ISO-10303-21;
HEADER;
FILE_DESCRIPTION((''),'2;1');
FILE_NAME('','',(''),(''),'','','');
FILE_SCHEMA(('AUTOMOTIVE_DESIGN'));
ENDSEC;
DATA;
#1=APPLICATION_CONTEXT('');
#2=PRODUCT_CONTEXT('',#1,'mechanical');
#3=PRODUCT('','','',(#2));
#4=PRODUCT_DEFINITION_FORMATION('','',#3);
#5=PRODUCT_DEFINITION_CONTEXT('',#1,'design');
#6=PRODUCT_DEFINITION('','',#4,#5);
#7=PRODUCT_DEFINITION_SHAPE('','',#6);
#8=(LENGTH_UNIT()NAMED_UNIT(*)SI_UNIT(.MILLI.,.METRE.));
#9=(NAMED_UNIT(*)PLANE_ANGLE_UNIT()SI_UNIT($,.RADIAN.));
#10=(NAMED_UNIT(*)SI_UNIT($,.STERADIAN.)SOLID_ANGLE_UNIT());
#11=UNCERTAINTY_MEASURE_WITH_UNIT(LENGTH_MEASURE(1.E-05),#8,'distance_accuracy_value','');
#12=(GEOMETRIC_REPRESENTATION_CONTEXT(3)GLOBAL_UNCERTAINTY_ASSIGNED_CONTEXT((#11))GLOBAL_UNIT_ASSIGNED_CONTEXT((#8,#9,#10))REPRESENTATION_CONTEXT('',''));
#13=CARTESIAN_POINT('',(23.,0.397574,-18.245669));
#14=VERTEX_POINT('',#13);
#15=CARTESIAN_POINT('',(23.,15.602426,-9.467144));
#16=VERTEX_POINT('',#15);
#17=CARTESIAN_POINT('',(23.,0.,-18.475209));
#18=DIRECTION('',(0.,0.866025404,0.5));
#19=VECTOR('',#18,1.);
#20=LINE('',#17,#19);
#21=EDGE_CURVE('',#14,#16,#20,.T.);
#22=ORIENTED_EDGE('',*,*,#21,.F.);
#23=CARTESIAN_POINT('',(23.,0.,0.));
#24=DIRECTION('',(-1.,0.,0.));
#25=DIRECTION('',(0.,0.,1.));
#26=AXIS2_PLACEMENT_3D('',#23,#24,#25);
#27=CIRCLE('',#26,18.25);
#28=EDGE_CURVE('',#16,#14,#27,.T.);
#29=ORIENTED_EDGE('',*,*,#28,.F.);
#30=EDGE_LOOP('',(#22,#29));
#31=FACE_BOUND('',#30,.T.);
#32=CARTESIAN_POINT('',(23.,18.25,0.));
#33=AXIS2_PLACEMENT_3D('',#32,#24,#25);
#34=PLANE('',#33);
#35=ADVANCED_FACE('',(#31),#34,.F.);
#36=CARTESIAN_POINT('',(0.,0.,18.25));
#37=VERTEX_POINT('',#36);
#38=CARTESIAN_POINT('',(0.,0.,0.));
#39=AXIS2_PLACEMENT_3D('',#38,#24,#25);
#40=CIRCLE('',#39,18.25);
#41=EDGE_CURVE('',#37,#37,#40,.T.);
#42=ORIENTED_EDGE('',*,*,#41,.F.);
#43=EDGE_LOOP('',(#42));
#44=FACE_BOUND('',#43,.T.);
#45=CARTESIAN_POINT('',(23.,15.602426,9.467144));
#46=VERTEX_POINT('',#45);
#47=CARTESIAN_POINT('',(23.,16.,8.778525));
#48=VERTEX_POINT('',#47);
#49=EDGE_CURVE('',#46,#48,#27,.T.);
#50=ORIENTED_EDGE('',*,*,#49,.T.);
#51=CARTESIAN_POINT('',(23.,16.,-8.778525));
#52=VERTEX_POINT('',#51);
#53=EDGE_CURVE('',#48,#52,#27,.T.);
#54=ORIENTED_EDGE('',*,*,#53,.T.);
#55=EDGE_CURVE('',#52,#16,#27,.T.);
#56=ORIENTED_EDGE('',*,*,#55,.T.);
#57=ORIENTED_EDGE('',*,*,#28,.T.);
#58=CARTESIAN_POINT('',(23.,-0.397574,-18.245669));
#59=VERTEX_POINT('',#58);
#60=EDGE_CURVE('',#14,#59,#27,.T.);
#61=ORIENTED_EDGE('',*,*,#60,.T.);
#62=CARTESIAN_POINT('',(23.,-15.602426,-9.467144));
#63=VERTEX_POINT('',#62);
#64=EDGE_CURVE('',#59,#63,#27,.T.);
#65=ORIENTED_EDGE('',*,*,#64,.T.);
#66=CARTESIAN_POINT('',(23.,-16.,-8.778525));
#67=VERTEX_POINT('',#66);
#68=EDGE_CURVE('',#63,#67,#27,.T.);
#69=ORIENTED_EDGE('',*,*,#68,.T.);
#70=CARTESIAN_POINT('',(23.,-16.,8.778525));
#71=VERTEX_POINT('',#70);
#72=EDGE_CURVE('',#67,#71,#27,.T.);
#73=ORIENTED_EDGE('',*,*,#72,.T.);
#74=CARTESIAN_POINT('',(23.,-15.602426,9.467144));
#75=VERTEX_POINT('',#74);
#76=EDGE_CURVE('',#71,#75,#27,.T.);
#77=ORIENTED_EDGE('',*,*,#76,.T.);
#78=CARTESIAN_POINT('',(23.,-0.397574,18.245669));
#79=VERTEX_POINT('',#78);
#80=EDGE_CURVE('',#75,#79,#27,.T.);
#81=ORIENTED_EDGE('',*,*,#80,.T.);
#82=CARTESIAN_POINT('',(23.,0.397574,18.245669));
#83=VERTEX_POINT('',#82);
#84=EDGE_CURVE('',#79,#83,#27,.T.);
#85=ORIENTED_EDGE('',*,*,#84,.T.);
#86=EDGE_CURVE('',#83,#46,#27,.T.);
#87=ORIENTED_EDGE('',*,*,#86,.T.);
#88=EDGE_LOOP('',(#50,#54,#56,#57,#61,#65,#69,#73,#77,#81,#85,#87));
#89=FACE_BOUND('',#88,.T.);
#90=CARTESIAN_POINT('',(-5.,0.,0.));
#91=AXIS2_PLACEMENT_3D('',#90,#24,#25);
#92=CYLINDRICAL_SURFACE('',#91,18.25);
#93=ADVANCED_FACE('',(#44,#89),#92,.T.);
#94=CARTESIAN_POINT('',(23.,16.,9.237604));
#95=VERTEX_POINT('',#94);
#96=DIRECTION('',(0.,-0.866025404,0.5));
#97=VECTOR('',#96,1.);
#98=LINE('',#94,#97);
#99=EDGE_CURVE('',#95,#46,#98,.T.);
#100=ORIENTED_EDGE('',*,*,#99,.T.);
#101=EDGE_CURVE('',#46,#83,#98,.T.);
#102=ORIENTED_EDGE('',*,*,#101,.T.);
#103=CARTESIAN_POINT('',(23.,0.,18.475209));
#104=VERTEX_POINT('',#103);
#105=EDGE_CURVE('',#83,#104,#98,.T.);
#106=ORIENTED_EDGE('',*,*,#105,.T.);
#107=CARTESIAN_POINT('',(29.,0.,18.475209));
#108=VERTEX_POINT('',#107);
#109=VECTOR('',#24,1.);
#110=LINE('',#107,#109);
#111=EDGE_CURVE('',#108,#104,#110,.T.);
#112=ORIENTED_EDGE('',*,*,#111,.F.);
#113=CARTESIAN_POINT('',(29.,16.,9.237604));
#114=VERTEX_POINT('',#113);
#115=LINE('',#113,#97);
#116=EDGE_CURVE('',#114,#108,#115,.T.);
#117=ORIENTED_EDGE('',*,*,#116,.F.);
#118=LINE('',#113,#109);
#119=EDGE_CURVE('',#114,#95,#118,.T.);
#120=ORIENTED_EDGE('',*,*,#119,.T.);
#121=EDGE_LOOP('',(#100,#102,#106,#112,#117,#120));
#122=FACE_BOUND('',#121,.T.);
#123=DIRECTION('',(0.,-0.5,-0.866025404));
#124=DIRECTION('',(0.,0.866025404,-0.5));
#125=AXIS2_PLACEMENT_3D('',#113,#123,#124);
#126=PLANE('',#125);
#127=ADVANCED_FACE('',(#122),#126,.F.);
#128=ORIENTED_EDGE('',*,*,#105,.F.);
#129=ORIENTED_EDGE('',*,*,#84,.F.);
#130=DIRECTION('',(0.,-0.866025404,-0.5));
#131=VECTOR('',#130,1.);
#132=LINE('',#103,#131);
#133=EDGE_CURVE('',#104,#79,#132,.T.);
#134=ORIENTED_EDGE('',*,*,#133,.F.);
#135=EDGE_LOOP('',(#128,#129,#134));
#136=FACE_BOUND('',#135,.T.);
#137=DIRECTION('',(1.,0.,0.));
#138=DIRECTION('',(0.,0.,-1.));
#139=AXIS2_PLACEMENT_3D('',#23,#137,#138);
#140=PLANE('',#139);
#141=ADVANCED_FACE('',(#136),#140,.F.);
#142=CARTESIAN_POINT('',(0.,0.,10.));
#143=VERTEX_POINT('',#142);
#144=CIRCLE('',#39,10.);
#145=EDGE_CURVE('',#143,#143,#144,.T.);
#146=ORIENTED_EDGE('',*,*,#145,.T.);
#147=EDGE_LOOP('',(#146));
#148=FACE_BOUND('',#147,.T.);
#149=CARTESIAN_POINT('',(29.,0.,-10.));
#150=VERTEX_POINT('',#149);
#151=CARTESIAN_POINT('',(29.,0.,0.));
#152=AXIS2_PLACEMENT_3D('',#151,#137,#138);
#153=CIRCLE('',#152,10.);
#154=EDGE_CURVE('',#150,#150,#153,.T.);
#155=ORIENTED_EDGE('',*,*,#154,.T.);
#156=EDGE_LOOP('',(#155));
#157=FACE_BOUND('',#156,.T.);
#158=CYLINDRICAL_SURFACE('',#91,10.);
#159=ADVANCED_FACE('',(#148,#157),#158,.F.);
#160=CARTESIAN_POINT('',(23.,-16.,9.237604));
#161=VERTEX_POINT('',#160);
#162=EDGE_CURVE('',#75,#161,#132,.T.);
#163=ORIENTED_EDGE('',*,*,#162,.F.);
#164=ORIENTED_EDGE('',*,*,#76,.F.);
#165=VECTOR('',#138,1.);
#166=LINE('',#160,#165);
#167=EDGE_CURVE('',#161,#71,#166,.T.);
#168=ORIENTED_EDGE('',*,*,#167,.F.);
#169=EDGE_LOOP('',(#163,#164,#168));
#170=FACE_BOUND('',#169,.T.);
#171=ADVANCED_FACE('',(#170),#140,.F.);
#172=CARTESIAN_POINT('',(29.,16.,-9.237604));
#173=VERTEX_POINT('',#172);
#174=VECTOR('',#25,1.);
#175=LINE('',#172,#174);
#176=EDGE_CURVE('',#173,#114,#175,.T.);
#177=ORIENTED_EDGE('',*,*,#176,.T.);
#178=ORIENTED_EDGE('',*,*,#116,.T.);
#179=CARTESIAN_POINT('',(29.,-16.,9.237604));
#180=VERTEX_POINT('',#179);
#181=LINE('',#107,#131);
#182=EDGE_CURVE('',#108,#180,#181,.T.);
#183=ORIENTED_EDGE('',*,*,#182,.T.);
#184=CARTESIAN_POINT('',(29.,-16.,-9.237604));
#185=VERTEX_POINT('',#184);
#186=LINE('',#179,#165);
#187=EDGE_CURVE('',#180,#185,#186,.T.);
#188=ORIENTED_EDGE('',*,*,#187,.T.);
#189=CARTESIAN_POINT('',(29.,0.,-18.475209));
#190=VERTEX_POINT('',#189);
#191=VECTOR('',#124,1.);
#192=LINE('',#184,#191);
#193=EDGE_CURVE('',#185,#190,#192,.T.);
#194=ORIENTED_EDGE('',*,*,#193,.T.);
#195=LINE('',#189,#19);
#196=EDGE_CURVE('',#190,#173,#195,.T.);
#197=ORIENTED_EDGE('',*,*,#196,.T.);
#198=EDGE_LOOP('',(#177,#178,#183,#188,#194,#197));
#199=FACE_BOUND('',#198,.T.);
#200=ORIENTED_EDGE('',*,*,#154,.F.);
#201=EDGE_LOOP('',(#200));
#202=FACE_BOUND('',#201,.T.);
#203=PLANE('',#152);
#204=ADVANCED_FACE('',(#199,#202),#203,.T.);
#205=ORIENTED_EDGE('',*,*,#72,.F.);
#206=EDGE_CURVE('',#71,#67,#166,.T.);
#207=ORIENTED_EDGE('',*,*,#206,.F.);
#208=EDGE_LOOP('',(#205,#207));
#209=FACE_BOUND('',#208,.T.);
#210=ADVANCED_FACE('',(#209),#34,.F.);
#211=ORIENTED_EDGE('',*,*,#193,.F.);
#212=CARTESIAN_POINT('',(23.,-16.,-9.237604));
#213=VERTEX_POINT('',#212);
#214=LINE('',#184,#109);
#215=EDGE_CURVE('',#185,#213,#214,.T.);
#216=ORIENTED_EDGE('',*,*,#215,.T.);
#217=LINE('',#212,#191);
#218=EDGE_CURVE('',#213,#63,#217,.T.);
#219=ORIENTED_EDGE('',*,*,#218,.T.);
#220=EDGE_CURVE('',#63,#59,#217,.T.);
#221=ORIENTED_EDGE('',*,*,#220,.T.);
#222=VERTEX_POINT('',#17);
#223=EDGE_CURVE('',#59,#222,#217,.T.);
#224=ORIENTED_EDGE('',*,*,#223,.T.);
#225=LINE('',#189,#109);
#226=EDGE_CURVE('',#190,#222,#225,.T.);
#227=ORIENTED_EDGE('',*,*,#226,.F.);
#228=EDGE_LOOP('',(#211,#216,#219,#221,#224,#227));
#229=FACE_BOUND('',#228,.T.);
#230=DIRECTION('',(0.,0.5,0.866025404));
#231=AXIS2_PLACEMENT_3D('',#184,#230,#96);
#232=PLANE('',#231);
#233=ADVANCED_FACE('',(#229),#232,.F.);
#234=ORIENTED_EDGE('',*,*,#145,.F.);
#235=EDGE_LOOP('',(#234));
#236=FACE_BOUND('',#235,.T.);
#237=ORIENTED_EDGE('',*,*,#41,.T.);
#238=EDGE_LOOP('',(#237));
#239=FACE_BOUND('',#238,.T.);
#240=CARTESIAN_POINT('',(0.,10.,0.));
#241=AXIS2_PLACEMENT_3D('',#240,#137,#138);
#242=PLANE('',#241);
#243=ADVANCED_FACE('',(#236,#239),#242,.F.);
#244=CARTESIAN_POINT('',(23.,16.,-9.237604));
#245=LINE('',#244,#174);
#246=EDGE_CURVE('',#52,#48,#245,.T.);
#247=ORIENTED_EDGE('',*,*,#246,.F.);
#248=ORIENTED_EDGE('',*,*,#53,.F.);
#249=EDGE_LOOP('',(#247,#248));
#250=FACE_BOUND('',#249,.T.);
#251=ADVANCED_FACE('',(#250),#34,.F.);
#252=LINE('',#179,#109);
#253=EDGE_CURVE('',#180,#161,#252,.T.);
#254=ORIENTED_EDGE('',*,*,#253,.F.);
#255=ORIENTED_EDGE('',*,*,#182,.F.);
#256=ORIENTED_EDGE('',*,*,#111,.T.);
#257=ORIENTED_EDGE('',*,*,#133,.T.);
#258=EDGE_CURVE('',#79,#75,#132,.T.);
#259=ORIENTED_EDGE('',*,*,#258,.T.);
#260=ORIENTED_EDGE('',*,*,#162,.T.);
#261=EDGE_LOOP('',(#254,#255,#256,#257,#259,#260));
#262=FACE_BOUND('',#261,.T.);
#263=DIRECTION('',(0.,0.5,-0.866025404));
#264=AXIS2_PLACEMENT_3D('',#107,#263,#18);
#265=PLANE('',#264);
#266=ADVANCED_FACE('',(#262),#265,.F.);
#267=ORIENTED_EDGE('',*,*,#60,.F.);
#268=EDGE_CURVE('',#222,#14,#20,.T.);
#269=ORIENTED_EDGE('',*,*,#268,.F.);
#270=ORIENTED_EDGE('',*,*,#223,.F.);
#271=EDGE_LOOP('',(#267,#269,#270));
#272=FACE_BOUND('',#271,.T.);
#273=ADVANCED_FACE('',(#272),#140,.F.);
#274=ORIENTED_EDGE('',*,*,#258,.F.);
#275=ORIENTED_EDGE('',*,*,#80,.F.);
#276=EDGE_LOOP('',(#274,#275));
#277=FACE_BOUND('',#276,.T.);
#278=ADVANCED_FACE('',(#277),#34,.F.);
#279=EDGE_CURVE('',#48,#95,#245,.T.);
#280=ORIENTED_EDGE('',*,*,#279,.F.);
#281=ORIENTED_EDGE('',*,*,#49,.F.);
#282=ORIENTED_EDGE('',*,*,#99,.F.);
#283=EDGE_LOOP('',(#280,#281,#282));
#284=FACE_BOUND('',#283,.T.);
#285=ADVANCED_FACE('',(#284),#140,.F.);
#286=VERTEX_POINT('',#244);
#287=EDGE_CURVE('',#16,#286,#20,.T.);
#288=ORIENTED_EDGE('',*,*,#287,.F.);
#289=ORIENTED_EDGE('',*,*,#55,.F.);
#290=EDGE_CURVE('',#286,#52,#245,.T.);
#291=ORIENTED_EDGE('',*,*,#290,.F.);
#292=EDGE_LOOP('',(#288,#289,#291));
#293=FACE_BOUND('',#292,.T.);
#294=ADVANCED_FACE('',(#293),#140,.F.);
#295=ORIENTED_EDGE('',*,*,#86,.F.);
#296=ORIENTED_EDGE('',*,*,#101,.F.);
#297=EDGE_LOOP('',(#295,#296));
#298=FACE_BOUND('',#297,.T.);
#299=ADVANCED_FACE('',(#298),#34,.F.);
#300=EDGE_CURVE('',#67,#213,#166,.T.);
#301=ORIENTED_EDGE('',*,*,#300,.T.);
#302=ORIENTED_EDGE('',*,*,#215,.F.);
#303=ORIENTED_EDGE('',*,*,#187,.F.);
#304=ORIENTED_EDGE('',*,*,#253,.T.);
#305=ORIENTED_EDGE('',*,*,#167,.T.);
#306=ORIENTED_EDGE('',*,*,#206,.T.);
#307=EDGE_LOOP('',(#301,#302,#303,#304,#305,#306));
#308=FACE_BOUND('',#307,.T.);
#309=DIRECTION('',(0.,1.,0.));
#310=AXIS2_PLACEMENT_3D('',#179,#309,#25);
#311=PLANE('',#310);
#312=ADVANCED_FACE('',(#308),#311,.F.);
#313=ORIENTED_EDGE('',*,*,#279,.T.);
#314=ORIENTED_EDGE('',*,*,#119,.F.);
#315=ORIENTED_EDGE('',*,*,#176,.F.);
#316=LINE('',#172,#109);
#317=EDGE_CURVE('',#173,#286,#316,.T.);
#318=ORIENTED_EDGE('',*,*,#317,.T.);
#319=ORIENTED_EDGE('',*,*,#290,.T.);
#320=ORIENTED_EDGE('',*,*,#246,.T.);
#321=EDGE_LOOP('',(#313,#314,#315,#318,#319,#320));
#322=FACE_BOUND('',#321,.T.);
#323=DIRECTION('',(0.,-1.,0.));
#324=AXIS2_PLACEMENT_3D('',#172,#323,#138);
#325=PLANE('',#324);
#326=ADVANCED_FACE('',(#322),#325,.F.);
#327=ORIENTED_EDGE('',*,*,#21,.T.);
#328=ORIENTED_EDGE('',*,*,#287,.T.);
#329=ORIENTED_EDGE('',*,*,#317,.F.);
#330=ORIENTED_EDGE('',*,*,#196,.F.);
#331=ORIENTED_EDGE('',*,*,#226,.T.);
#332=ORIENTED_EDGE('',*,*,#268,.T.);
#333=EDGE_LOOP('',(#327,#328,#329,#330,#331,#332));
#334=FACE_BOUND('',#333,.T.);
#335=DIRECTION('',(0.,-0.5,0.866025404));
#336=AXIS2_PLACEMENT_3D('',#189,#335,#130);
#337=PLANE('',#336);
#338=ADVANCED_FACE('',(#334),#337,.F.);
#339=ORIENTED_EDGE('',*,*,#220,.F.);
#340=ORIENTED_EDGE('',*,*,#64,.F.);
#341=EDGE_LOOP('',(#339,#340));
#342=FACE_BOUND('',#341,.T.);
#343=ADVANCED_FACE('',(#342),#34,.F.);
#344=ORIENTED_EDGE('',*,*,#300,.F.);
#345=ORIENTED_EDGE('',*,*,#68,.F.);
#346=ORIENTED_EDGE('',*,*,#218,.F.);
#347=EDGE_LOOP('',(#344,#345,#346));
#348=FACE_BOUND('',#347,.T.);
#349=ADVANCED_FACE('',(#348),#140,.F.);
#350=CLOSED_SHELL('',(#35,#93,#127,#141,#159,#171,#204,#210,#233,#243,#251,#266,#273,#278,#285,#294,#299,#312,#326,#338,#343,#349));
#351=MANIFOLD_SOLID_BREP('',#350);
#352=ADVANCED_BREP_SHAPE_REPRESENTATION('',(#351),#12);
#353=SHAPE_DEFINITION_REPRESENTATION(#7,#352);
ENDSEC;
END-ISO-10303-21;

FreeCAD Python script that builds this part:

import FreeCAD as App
import Part
import Sketcher
from FreeCAD import Vector
Q = App.Units.Quantity


def add_polygon(sketch, points):
    """Adds a closed chain of lines whose ends are joined by coincident constraints."""
    first, n = sketch.GeometryCount, len(points)
    for a, b in zip(points, points[1:] + points[:1]):
        sketch.addGeometry(Part.LineSegment(App.Vector(*a, 0), App.Vector(*b, 0)), False)
    for i in range(n):
        sketch.addConstraint(Sketcher.Constraint("Coincident", first + i, 2, first + (i + 1) % n, 1))

doc = App.newDocument("Part")
body = doc.addObject("PartDesign::Body", "Body")

sketch1 = body.newObject("Sketcher::SketchObject", "Sketch")
sketch1.AttachmentSupport = (doc.getObject("XY_Plane"), [""])
sketch1.MapMode = "FlatFace"
add_polygon(sketch1, [(0, 18), (0, 10), (23, 10), (23, 18)])
sketch1.addConstraint([
    Sketcher.Constraint("Vertical", 0),
    Sketcher.Constraint("Horizontal", 1),
    Sketcher.Constraint("Vertical", 2),
    Sketcher.Constraint("Horizontal", 3),
    Sketcher.Constraint("PointOnObject", 0, 2, -2),
    Sketcher.Constraint("DistanceX", 1, 1, 1, 2, 23.0),
    Sketcher.Constraint("DistanceY", -1, 1, 0, 2, 10.0),
    Sketcher.Constraint("DistanceY", 0, 2, 0, 1, 8.25),
])
revolution = body.newObject("PartDesign::Revolution", "Revolution")
revolution.Profile = sketch1
revolution.ReferenceAxis = (sketch1, ["H_Axis"])
revolution.Angle = 360

sketch2 = body.newObject("Sketcher::SketchObject", "Sketch001")
sketch2.AttachmentSupport = (doc.getObject("YZ_Plane"), [""])
sketch2.MapMode = "FlatFace"
sketch2.AttachmentOffset = App.Placement(Vector(0, 0, 23), App.Rotation())
add_polygon(sketch2, [(0, -18), (16, -9), (16, 9), (0, 18), (-16, 9), (-16, -9)])
sketch2.addGeometry(Part.Circle(Vector(0, 0, 0), Vector(0, 0, 1), 10), False)
sketch2.addConstraint([
    Sketcher.Constraint("Vertical", 1),
    Sketcher.Constraint("Vertical", 4),
    Sketcher.Constraint("Coincident", 6, 3, -1, 1),
    Sketcher.Constraint("Symmetric", 0, 2, 3, 2, -1, 1),
    Sketcher.Constraint("Symmetric", 2, 2, 5, 2, -1, 1),
    Sketcher.Constraint("PointOnObject", 2, 2, -2),
    Sketcher.Constraint("Parallel", 2, 5),
    Sketcher.Constraint("Horizontal", 1, 2, 3, 2),
    Sketcher.Constraint("Diameter", 6, 20.0),
    Sketcher.Constraint("Angle", 0, Q("30 deg")),
    Sketcher.Constraint("DistanceX", -1, 1, 0, 2, 16.0),
    Sketcher.Constraint("DistanceY", 1, 1, 1, 2, 18.475209),
])
pad1 = body.newObject("PartDesign::Pad", "Pad")
pad1.Profile = sketch2
pad1.Length = 6

doc.recompute()
